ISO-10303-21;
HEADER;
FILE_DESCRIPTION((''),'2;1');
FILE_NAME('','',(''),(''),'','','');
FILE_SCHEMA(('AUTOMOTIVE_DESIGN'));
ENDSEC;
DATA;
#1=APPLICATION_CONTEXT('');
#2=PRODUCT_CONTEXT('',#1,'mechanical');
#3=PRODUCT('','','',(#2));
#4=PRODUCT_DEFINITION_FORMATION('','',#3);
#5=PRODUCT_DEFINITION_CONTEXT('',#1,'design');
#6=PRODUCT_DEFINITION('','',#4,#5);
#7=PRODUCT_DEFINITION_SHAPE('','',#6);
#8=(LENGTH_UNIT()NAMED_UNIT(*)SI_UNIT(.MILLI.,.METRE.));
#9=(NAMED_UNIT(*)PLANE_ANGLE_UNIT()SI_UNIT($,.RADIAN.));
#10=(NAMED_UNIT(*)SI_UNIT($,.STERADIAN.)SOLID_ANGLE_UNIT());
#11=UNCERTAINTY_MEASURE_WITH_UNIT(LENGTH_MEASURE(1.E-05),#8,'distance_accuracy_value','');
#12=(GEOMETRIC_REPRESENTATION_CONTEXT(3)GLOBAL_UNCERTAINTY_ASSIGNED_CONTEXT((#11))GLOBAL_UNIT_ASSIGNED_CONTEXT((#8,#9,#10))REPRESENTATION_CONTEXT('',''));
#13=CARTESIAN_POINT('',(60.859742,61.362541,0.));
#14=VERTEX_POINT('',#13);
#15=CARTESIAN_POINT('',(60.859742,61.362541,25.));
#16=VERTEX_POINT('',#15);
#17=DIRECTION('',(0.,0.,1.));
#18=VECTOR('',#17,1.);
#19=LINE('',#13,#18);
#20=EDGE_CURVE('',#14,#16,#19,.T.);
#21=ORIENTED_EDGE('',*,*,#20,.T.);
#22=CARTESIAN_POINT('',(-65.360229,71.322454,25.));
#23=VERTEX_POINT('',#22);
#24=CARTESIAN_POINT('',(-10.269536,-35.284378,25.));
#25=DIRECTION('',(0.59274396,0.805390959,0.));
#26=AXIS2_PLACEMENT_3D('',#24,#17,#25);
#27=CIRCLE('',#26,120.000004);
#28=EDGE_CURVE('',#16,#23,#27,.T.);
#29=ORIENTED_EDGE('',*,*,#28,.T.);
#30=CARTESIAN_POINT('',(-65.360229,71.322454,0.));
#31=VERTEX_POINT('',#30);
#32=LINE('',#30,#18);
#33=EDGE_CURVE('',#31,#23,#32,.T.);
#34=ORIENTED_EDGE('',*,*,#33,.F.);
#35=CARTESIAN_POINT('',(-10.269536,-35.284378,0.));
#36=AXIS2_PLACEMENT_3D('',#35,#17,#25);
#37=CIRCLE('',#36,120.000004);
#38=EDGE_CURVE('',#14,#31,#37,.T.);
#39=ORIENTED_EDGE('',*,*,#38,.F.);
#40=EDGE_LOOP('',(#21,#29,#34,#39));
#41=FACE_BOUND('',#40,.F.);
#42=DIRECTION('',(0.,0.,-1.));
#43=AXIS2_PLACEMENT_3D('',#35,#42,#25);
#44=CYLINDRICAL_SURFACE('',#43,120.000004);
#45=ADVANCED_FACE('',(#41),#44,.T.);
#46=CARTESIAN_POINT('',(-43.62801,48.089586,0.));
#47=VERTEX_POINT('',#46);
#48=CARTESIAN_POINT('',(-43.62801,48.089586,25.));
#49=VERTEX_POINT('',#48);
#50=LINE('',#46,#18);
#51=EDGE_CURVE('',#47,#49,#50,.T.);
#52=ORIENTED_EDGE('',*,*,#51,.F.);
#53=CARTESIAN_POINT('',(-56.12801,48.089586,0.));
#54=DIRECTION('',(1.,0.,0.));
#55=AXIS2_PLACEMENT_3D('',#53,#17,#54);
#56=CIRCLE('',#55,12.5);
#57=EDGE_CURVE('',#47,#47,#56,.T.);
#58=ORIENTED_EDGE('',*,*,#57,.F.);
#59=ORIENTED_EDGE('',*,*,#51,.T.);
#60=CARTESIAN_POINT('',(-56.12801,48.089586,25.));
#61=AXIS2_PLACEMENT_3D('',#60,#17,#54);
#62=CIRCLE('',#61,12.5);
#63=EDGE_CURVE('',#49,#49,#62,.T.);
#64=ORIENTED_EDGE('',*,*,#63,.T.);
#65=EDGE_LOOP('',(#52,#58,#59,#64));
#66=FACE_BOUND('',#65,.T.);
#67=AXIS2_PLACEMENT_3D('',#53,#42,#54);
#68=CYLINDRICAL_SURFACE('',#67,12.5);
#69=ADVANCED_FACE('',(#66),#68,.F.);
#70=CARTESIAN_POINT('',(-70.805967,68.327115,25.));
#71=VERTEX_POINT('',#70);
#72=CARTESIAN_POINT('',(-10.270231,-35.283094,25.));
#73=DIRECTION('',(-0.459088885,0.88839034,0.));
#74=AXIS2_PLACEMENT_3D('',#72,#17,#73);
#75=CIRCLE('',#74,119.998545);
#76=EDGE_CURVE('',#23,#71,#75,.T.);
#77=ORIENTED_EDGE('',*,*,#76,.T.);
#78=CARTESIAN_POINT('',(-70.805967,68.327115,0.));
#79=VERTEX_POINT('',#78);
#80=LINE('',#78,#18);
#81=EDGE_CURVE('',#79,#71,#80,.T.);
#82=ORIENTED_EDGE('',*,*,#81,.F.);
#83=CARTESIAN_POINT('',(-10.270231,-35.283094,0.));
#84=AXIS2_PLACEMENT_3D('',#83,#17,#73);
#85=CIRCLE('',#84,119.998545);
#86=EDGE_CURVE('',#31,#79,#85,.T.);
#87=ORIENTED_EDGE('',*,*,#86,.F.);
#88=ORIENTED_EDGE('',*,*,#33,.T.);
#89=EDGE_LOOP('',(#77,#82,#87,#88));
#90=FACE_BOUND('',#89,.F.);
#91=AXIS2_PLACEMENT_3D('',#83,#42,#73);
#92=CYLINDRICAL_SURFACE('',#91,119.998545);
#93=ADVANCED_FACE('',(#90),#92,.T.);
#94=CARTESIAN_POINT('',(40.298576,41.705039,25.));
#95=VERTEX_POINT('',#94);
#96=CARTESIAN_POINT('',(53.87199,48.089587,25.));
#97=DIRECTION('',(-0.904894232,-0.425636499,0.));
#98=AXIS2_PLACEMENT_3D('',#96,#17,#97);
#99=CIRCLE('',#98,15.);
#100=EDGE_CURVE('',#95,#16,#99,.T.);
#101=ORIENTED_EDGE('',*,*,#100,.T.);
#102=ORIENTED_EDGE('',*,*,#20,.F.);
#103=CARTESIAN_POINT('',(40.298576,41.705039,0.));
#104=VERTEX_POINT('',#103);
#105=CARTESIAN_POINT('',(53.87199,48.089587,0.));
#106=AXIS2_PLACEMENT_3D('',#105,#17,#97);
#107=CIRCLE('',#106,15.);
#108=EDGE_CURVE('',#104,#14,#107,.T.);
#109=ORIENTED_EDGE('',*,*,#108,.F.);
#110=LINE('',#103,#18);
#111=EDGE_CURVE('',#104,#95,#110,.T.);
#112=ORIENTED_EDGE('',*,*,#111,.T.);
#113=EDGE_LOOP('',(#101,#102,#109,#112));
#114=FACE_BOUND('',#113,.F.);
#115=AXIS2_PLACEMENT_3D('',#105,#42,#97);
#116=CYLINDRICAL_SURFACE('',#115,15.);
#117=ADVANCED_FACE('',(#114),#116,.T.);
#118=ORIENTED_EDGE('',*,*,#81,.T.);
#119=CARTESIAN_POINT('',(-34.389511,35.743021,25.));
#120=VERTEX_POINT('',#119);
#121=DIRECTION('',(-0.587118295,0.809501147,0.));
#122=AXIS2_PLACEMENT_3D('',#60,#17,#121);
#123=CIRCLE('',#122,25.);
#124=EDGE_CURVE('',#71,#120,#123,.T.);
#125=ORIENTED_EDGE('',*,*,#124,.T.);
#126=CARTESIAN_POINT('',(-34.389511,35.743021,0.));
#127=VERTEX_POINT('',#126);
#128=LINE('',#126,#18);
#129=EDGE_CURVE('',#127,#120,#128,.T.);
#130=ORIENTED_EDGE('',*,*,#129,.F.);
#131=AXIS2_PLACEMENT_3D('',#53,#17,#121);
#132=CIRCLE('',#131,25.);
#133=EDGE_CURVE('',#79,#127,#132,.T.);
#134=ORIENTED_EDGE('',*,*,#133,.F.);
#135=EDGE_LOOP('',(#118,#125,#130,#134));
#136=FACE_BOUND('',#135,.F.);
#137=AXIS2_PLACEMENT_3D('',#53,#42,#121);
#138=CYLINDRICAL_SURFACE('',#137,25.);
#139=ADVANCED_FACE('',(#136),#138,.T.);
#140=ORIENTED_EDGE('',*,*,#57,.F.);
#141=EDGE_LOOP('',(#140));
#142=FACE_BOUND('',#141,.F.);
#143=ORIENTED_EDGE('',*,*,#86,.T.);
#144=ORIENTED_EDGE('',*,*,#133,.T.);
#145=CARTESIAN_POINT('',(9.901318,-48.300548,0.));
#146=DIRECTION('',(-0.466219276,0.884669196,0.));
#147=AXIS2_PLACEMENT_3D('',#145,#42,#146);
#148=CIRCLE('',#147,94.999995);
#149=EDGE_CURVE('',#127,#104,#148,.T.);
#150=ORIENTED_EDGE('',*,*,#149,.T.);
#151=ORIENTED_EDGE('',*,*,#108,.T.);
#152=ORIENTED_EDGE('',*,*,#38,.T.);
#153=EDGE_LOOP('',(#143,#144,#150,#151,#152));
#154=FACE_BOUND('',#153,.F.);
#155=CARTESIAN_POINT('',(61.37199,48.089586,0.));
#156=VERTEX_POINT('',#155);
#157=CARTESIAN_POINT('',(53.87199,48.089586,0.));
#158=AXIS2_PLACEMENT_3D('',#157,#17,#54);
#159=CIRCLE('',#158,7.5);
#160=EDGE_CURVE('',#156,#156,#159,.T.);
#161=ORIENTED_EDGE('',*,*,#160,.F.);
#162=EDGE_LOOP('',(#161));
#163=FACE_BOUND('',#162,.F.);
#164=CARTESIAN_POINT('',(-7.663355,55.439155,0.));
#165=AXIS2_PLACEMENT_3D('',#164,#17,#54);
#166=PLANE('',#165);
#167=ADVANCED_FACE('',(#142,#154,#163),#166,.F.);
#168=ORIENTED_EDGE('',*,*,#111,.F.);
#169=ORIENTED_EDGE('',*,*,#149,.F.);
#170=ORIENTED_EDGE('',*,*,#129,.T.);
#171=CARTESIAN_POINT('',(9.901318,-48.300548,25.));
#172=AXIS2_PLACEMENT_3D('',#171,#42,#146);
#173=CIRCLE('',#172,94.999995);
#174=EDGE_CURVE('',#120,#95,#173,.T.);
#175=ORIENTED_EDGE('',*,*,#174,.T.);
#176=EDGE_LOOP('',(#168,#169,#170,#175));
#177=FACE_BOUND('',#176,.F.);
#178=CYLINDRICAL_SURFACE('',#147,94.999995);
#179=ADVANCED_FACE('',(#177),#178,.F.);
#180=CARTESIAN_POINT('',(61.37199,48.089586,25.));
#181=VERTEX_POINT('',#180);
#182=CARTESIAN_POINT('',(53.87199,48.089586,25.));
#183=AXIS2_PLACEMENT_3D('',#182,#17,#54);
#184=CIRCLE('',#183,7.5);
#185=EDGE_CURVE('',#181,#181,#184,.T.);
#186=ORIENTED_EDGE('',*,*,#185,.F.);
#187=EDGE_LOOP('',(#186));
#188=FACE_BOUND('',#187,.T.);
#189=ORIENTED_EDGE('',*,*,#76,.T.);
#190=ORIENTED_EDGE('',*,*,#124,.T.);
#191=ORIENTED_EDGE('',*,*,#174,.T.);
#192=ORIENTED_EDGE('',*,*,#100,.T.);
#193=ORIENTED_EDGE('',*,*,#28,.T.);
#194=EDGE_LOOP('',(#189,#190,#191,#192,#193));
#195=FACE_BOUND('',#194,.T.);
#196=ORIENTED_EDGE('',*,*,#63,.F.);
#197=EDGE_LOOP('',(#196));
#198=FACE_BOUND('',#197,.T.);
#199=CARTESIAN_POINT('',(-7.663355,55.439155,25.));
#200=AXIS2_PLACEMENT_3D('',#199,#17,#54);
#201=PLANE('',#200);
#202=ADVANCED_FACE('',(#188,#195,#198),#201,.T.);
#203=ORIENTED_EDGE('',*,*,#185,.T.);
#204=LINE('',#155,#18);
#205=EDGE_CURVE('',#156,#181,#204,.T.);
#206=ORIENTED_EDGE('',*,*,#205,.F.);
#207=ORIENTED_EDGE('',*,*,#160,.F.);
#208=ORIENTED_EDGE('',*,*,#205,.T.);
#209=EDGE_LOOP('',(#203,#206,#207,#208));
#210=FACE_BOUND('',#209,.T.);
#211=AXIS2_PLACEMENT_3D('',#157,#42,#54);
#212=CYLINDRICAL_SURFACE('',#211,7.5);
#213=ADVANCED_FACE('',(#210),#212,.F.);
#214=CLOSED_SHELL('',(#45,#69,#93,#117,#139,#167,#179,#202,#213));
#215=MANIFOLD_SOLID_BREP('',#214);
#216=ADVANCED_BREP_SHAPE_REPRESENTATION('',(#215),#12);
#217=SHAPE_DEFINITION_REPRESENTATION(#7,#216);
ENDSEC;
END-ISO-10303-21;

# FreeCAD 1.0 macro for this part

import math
import FreeCAD as App
import Part
import Sketcher

V = App.Vector

doc = App.newDocument("Part")
body = doc.addObject("PartDesign::Body", "Body")

sketch1 = doc.addObject("Sketcher::SketchObject", "Sketch")
body.addObject(sketch1)
sketch1.AttachmentSupport = (doc.XY_Plane, [""])
sketch1.MapMode = "FlatFace"
sketch1.addGeometry([
    Part.ArcOfCircle(Part.Circle(V(-10.269536, -35.284378, 0), V(0, 0, 1), 120.000004), math.radians(53.648029), math.radians(117.328344)),
    Part.ArcOfCircle(Part.Circle(V(-10.270231, -35.283094, 0), V(0, 0, 1), 119.998545), math.radians(117.328331), math.radians(120.296215)),
    Part.ArcOfCircle(Part.Circle(V(-56.12801, 48.089586, 0), V(0, 0, 1), 25), math.radians(125.952779), math.radians(330.405222)),
    Part.ArcOfCircle(Part.Circle(V(9.901318, -48.300548, 0), V(0, 0, 1), 94.999995), math.radians(71.338819), math.radians(117.78916)),
    Part.ArcOfCircle(Part.Circle(V(53.87199, 48.089587, 0), V(0, 0, 1), 15), math.radians(-154.809042), math.radians(62.234743)),
    Part.Circle(V(-56.12801, 48.089586, 0), V(0, 0, 1), 12.5),
    Part.Circle(V(53.87199, 48.089586, 0), V(0, 0, 1), 7.5),
], False)
sketch1.addConstraint([
    Sketcher.Constraint("Coincident", 0, 2, 1, 1),
    Sketcher.Constraint("Coincident", 1, 2, 2, 1),
    Sketcher.Constraint("Coincident", 2, 2, 3, 2),
    Sketcher.Constraint("Coincident", 3, 1, 4, 1),
    Sketcher.Constraint("Coincident", 4, 2, 0, 1),
    Sketcher.Constraint("Coincident", 5, 3, 2, 3),
    Sketcher.Constraint("Coincident", 6, 3, 4, 3),
    Sketcher.Constraint("Diameter", 5, 25.0),
    Sketcher.Constraint("Diameter", 6, 15.0),
    Sketcher.Constraint("Radius", 2, 25.0),
    Sketcher.Constraint("Radius", 4, 15.0),
    Sketcher.Constraint("DistanceX", 2, 3, 4, 3, 109.999999),
    Sketcher.Constraint("DistanceX", 0, 2, 1, 3, 55.089998),
    Sketcher.Constraint("Radius", 0, 120.000004),
    Sketcher.Constraint("Radius", 1, 119.998545),
    Sketcher.Constraint("Radius", 3, 94.999995),
    Sketcher.Constraint("DistanceX", 2, 3, 2, 2, 21.738499),
    Sketcher.Constraint("DistanceX", 1, 3, -1, 1, 10.270231),
    Sketcher.Constraint("DistanceX", 2, 3, -1, 1, 56.12801),
    Sketcher.Constraint("DistanceY", -1, 1, 2, 2, 35.743021),
    Sketcher.Constraint("DistanceY", -1, 1, 3, 1, 41.705039),
    Sketcher.Constraint("DistanceY", -1, 1, 4, 2, 61.362541),
    Sketcher.Constraint("DistanceY", 1, 3, 2, 3, 83.37268),
    Sketcher.Constraint("DistanceY", 3, 3, 0, 3, 13.01617),
])
pad1 = doc.addObject("PartDesign::Pad", "Pad")
body.addObject(pad1)
pad1.Profile = sketch1
pad1.Length = 25

doc.recompute()
